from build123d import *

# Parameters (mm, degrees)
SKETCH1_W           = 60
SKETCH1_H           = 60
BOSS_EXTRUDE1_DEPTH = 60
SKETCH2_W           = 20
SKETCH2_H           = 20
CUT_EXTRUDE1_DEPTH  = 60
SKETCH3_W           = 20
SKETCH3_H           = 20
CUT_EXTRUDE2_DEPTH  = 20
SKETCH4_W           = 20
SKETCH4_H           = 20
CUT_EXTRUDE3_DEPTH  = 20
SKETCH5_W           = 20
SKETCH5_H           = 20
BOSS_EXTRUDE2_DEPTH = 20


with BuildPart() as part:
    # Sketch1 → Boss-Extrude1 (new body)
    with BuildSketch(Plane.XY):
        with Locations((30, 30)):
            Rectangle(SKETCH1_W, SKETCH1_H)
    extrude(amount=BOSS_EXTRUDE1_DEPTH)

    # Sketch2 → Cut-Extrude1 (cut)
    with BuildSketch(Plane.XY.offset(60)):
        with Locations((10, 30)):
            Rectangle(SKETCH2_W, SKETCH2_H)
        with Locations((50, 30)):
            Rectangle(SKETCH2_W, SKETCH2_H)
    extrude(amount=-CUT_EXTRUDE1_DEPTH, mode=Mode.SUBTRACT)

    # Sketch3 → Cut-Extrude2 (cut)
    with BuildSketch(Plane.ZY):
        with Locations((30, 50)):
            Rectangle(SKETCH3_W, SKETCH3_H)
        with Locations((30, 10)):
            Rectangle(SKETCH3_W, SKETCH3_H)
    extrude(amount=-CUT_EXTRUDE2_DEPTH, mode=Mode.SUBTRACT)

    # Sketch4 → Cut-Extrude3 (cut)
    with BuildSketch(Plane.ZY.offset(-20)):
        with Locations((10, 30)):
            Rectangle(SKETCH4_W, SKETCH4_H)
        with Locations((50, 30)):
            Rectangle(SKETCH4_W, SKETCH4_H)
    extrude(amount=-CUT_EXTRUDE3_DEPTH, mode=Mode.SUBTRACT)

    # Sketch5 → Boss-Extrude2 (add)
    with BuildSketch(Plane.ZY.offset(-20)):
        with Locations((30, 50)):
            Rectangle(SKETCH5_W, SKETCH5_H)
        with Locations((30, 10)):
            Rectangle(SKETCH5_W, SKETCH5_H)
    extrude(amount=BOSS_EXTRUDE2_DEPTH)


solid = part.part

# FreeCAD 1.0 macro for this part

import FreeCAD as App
import Part
import Sketcher

V = App.Vector
Q = App.Units.Quantity

doc = App.newDocument("Part")
body = doc.addObject("PartDesign::Body", "Body")

# Sketch on XY plane
sketch1 = body.newObject("Sketcher::SketchObject", "Sketch")
sketch1.AttachmentSupport = (doc.getObject("XY_Plane"), [""])
sketch1.MapMode = "FlatFace"
sketch1.addGeometry(Part.LineSegment(V(0, 60, 0), V(0, 0, 0)), False)
sketch1.addGeometry(Part.LineSegment(V(0, 0, 0), V(60, 0, 0)), False)
sketch1.addGeometry(Part.LineSegment(V(60, 0, 0), V(60, 60, 0)), False)
sketch1.addGeometry(Part.LineSegment(V(60, 60, 0), V(0, 60, 0)), False)
sketch1.addConstraint(Sketcher.Constraint("Coincident", 0, 2, 1, 1))
sketch1.addConstraint(Sketcher.Constraint("Coincident", 1, 2, 2, 1))
sketch1.addConstraint(Sketcher.Constraint("Coincident", 2, 2, 3, 1))
sketch1.addConstraint(Sketcher.Constraint("Coincident", 3, 2, 0, 1))
sketch1.addConstraint(Sketcher.Constraint("Vertical", 0))
sketch1.addConstraint(Sketcher.Constraint("Horizontal", 1))
sketch1.addConstraint(Sketcher.Constraint("Vertical", 2))
sketch1.addConstraint(Sketcher.Constraint("Horizontal", 3))
sketch1.addConstraint(Sketcher.Constraint("Coincident", 0, 2, -1, 1))
sketch1.addConstraint(Sketcher.Constraint("Equal", 3, 0))
sketch1.addConstraint(Sketcher.Constraint("DistanceX", 1, 1, 1, 2, Q("60 mm")))
pad1 = body.newObject("PartDesign::Pad", "Pad")
pad1.Profile = sketch1
pad1.Length = 60

# Sketch on XY plane
sketch2 = body.newObject("Sketcher::SketchObject", "Sketch001")
sketch2.AttachmentSupport = (doc.getObject("XY_Plane"), [""])
sketch2.MapMode = "FlatFace"
sketch2.AttachmentOffset = App.Placement(V(0, 0, 60), App.Rotation())
sketch2.addGeometry(Part.LineSegment(V(0, 40, 0), V(0, 20, 0)), False)
sketch2.addGeometry(Part.LineSegment(V(0, 20, 0), V(20, 20, 0)), False)
sketch2.addGeometry(Part.LineSegment(V(20, 20, 0), V(20, 40, 0)), False)
sketch2.addGeometry(Part.LineSegment(V(20, 40, 0), V(0, 40, 0)), False)
sketch2.addGeometry(Part.LineSegment(V(40, 40, 0), V(40, 20, 0)), False)
sketch2.addGeometry(Part.LineSegment(V(40, 20, 0), V(60, 20, 0)), False)
sketch2.addGeometry(Part.LineSegment(V(60, 20, 0), V(60, 40, 0)), False)
sketch2.addGeometry(Part.LineSegment(V(60, 40, 0), V(40, 40, 0)), False)
sketch2.addConstraint(Sketcher.Constraint("Coincident", 0, 2, 1, 1))
sketch2.addConstraint(Sketcher.Constraint("Coincident", 1, 2, 2, 1))
sketch2.addConstraint(Sketcher.Constraint("Coincident", 2, 2, 3, 1))
sketch2.addConstraint(Sketcher.Constraint("Coincident", 3, 2, 0, 1))
sketch2.addConstraint(Sketcher.Constraint("Coincident", 4, 2, 5, 1))
sketch2.addConstraint(Sketcher.Constraint("Coincident", 5, 2, 6, 1))
sketch2.addConstraint(Sketcher.Constraint("Coincident", 6, 2, 7, 1))
sketch2.addConstraint(Sketcher.Constraint("Coincident", 7, 2, 4, 1))
sketch2.addConstraint(Sketcher.Constraint("Vertical", 0))
sketch2.addConstraint(Sketcher.Constraint("Horizontal", 1))
sketch2.addConstraint(Sketcher.Constraint("Vertical", 2))
sketch2.addConstraint(Sketcher.Constraint("Horizontal", 3))
sketch2.addConstraint(Sketcher.Constraint("Vertical", 4))
sketch2.addConstraint(Sketcher.Constraint("Horizontal", 5))
sketch2.addConstraint(Sketcher.Constraint("Vertical", 6))
sketch2.addConstraint(Sketcher.Constraint("Horizontal", 7))
sketch2.addConstraint(Sketcher.Constraint("PointOnObject", 0, 2, -2))
sketch2.addConstraint(Sketcher.Constraint("Horizontal", 1, 2, 4, 2))
sketch2.addConstraint(Sketcher.Constraint("Horizontal", 3, 2, 6, 2))
sketch2.addConstraint(Sketcher.Constraint("Equal", 3, 5))
sketch2.addConstraint(Sketcher.Constraint("Equal", 7, 0))
sketch2.addConstraint(Sketcher.Constraint("DistanceX", 1, 1, 1, 2, Q("20 mm")))
sketch2.addConstraint(Sketcher.Constraint("DistanceY", -1, 1, 0, 2, Q("20 mm")))
sketch2.addConstraint(Sketcher.Constraint("DistanceX", -1, 1, 4, 2, Q("40 mm")))
pocket1 = body.newObject("PartDesign::Pocket", "Pocket")
pocket1.Profile = sketch2
pocket1.Length = 60

# Sketch on YZ plane
sketch3 = body.newObject("Sketcher::SketchObject", "Sketch002")
sketch3.AttachmentSupport = (doc.getObject("YZ_Plane"), [""])
sketch3.MapMode = "FlatFace"
sketch3.addGeometry(Part.LineSegment(V(60, 20, 0), V(40, 20, 0)), False)
sketch3.addGeometry(Part.LineSegment(V(40, 20, 0), V(40, 40, 0)), False)
sketch3.addGeometry(Part.LineSegment(V(40, 40, 0), V(60, 40, 0)), False)
sketch3.addGeometry(Part.LineSegment(V(60, 40, 0), V(60, 20, 0)), False)
sketch3.addGeometry(Part.LineSegment(V(20, 20, 0), V(0, 20, 0)), False)
sketch3.addGeometry(Part.LineSegment(V(0, 20, 0), V(0, 40, 0)), False)
sketch3.addGeometry(Part.LineSegment(V(0, 40, 0), V(20, 40, 0)), False)
sketch3.addGeometry(Part.LineSegment(V(20, 40, 0), V(20, 20, 0)), False)
sketch3.addConstraint(Sketcher.Constraint("Coincident", 0, 2, 1, 1))
sketch3.addConstraint(Sketcher.Constraint("Coincident", 1, 2, 2, 1))
sketch3.addConstraint(Sketcher.Constraint("Coincident", 2, 2, 3, 1))
sketch3.addConstraint(Sketcher.Constraint("Coincident", 3, 2, 0, 1))
sketch3.addConstraint(Sketcher.Constraint("Coincident", 4, 2, 5, 1))
sketch3.addConstraint(Sketcher.Constraint("Coincident", 5, 2, 6, 1))
sketch3.addConstraint(Sketcher.Constraint("Coincident", 6, 2, 7, 1))
sketch3.addConstraint(Sketcher.Constraint("Coincident", 7, 2, 4, 1))
sketch3.addConstraint(Sketcher.Constraint("Horizontal", 0))
sketch3.addConstraint(Sketcher.Constraint("Vertical", 1))
sketch3.addConstraint(Sketcher.Constraint("Horizontal", 2))
sketch3.addConstraint(Sketcher.Constraint("Vertical", 3))
sketch3.addConstraint(Sketcher.Constraint("Horizontal", 4))
sketch3.addConstraint(Sketcher.Constraint("Vertical", 5))
sketch3.addConstraint(Sketcher.Constraint("Horizontal", 6))
sketch3.addConstraint(Sketcher.Constraint("Vertical", 7))
sketch3.addConstraint(Sketcher.Constraint("PointOnObject", 4, 2, -2))
sketch3.addConstraint(Sketcher.Constraint("Horizontal", 3, 2, 4, 2))
sketch3.addConstraint(Sketcher.Constraint("Horizontal", 2, 2, 5, 2))
sketch3.addConstraint(Sketcher.Constraint("Equal", 2, 4))
sketch3.addConstraint(Sketcher.Constraint("Equal", 6, 1))
sketch3.addConstraint(Sketcher.Constraint("DistanceX", 0, 2, 0, 1, Q("20 mm")))
sketch3.addConstraint(Sketcher.Constraint("DistanceX", -1, 1, 0, 2, Q("40 mm")))
sketch3.addConstraint(Sketcher.Constraint("DistanceY", -1, 1, 0, 2, Q("20 mm")))
pocket2 = body.newObject("PartDesign::Pocket", "Pocket001")
pocket2.Profile = sketch3
pocket2.Length = 20
pocket2.Reversed = True

# Sketch on YZ plane
sketch4 = body.newObject("Sketcher::SketchObject", "Sketch003")
sketch4.AttachmentSupport = (doc.getObject("YZ_Plane"), [""])
sketch4.MapMode = "FlatFace"
sketch4.AttachmentOffset = App.Placement(V(0, 0, 20), App.Rotation())
sketch4.addGeometry(Part.LineSegment(V(40, 0, 0), V(20, 0, 0)), False)
sketch4.addGeometry(Part.LineSegment(V(20, 0, 0), V(20, 20, 0)), False)
sketch4.addGeometry(Part.LineSegment(V(20, 20, 0), V(40, 20, 0)), False)
sketch4.addGeometry(Part.LineSegment(V(40, 20, 0), V(40, 0, 0)), False)
sketch4.addGeometry(Part.LineSegment(V(40, 40, 0), V(20, 40, 0)), False)
sketch4.addGeometry(Part.LineSegment(V(20, 40, 0), V(20, 60, 0)), False)
sketch4.addGeometry(Part.LineSegment(V(20, 60, 0), V(40, 60, 0)), False)
sketch4.addGeometry(Part.LineSegment(V(40, 60, 0), V(40, 40, 0)), False)
sketch4.addConstraint(Sketcher.Constraint("Coincident", 0, 2, 1, 1))
sketch4.addConstraint(Sketcher.Constraint("Coincident", 1, 2, 2, 1))
sketch4.addConstraint(Sketcher.Constraint("Coincident", 2, 2, 3, 1))
sketch4.addConstraint(Sketcher.Constraint("Coincident", 3, 2, 0, 1))
sketch4.addConstraint(Sketcher.Constraint("Coincident", 4, 2, 5, 1))
sketch4.addConstraint(Sketcher.Constraint("Coincident", 5, 2, 6, 1))
sketch4.addConstraint(Sketcher.Constraint("Coincident", 6, 2, 7, 1))
sketch4.addConstraint(Sketcher.Constraint("Coincident", 7, 2, 4, 1))
sketch4.addConstraint(Sketcher.Constraint("Horizontal", 0))
sketch4.addConstraint(Sketcher.Constraint("Vertical", 1))
sketch4.addConstraint(Sketcher.Constraint("Horizontal", 2))
sketch4.addConstraint(Sketcher.Constraint("Vertical", 3))
sketch4.addConstraint(Sketcher.Constraint("Horizontal", 4))
sketch4.addConstraint(Sketcher.Constraint("Vertical", 5))
sketch4.addConstraint(Sketcher.Constraint("Horizontal", 6))
sketch4.addConstraint(Sketcher.Constraint("Vertical", 7))
sketch4.addConstraint(Sketcher.Constraint("PointOnObject", 0, 2, -1))
sketch4.addConstraint(Sketcher.Constraint("Vertical", 1, 2, 4, 2))
sketch4.addConstraint(Sketcher.Constraint("Vertical", 3, 2, 6, 2))
sketch4.addConstraint(Sketcher.Constraint("Equal", 6, 1))
sketch4.addConstraint(Sketcher.Constraint("Equal", 3, 5))
sketch4.addConstraint(Sketcher.Constraint("DistanceX", 0, 2, 0, 1, Q("20 mm")))
sketch4.addConstraint(Sketcher.Constraint("DistanceX", -1, 1, 0, 2, Q("20 mm")))
sketch4.addConstraint(Sketcher.Constraint("DistanceY", -1, 1, 4, 2, Q("40 mm")))
pocket3 = body.newObject("PartDesign::Pocket", "Pocket002")
pocket3.Profile = sketch4
pocket3.Length = 20
pocket3.Reversed = True

# Sketch on YZ plane
sketch5 = body.newObject("Sketcher::SketchObject", "Sketch004")
sketch5.AttachmentSupport = (doc.getObject("YZ_Plane"), [""])
sketch5.MapMode = "FlatFace"
sketch5.AttachmentOffset = App.Placement(V(0, 0, 20), App.Rotation())
sketch5.addGeometry(Part.LineSegment(V(60, 20, 0), V(40, 20, 0)), False)
sketch5.addGeometry(Part.LineSegment(V(40, 20, 0), V(40, 40, 0)), False)
sketch5.addGeometry(Part.LineSegment(V(40, 40, 0), V(60, 40, 0)), False)
sketch5.addGeometry(Part.LineSegment(V(60, 40, 0), V(60, 20, 0)), False)
sketch5.addGeometry(Part.LineSegment(V(20, 20, 0), V(0, 20, 0)), False)
sketch5.addGeometry(Part.LineSegment(V(0, 20, 0), V(0, 40, 0)), False)
sketch5.addGeometry(Part.LineSegment(V(0, 40, 0), V(20, 40, 0)), False)
sketch5.addGeometry(Part.LineSegment(V(20, 40, 0), V(20, 20, 0)), False)
sketch5.addConstraint(Sketcher.Constraint("Coincident", 0, 2, 1, 1))
sketch5.addConstraint(Sketcher.Constraint("Coincident", 1, 2, 2, 1))
sketch5.addConstraint(Sketcher.Constraint("Coincident", 2, 2, 3, 1))
sketch5.addConstraint(Sketcher.Constraint("Coincident", 3, 2, 0, 1))
sketch5.addConstraint(Sketcher.Constraint("Coincident", 4, 2, 5, 1))
sketch5.addConstraint(Sketcher.Constraint("Coincident", 5, 2, 6, 1))
sketch5.addConstraint(Sketcher.Constraint("Coincident", 6, 2, 7, 1))
sketch5.addConstraint(Sketcher.Constraint("Coincident", 7, 2, 4, 1))
sketch5.addConstraint(Sketcher.Constraint("Horizontal", 0))
sketch5.addConstraint(Sketcher.Constraint("Vertical", 1))
sketch5.addConstraint(Sketcher.Constraint("Horizontal", 2))
sketch5.addConstraint(Sketcher.Constraint("Vertical", 3))
sketch5.addConstraint(Sketcher.Constraint("Horizontal", 4))
sketch5.addConstraint(Sketcher.Constraint("Vertical", 5))
sketch5.addConstraint(Sketcher.Constraint("Horizontal", 6))
sketch5.addConstraint(Sketcher.Constraint("Vertical", 7))
sketch5.addConstraint(Sketcher.Constraint("PointOnObject", 4, 2, -2))
sketch5.addConstraint(Sketcher.Constraint("Horizontal", 3, 2, 4, 2))
sketch5.addConstraint(Sketcher.Constraint("Horizontal", 2, 2, 5, 2))
sketch5.addConstraint(Sketcher.Constraint("Equal", 2, 4))
sketch5.addConstraint(Sketcher.Constraint("Equal", 6, 1))
sketch5.addConstraint(Sketcher.Constraint("DistanceX", 0, 2, 0, 1, Q("20 mm")))
sketch5.addConstraint(Sketcher.Constraint("DistanceX", -1, 1, 0, 2, Q("40 mm")))
sketch5.addConstraint(Sketcher.Constraint("DistanceY", -1, 1, 0, 2, Q("20 mm")))
pad2 = body.newObject("PartDesign::Pad", "Pad001")
pad2.Profile = sketch5
pad2.Length = 20
pad2.Reversed = True

doc.recompute()
